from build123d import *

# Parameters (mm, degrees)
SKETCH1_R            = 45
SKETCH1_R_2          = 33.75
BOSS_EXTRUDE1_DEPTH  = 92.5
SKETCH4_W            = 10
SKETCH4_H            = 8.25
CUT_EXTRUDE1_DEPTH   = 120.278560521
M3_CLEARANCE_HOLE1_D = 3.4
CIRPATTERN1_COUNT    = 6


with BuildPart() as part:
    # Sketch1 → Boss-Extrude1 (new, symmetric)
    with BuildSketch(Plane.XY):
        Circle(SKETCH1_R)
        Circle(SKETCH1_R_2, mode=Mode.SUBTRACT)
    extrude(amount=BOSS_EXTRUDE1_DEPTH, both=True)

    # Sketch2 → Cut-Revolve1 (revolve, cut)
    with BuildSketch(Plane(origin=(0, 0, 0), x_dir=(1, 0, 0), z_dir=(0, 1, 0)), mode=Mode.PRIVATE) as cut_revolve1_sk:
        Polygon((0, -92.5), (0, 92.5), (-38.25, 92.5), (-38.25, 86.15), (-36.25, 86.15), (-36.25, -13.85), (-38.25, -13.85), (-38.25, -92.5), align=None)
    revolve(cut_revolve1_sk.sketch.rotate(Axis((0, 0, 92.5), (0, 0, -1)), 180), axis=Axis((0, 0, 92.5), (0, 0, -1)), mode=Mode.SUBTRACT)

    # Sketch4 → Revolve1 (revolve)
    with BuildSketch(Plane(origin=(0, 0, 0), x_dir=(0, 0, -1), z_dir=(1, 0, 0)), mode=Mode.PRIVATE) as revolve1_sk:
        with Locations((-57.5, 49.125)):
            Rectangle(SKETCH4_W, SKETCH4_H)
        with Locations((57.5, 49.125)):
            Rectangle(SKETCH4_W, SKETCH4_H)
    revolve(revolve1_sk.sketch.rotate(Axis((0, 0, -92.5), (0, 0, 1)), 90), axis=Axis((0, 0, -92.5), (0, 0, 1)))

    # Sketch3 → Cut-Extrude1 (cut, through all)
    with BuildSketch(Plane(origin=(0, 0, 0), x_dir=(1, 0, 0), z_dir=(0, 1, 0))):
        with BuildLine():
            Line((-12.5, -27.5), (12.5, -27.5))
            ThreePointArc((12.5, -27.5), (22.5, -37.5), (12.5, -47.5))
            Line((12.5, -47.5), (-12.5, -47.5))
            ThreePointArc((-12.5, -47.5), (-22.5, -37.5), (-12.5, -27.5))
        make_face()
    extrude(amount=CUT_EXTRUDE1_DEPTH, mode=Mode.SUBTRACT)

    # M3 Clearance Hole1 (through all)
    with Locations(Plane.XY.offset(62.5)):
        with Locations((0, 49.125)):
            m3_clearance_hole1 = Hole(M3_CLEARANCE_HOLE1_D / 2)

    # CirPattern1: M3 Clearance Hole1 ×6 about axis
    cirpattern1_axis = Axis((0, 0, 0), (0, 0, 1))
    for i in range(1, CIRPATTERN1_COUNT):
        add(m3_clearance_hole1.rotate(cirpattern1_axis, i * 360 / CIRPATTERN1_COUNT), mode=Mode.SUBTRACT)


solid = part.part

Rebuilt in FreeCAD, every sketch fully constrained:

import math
import FreeCAD as App
import Part
import Sketcher

doc = App.newDocument("Part")
body = doc.addObject("PartDesign::Body", "Body")

sketch1 = body.newObject("Sketcher::SketchObject", "Sketch")
sketch1.AttachmentSupport = (doc.getObject("XY_Plane"), [""])
sketch1.MapMode = "FlatFace"
sketch1.addGeometry([
    Part.Circle(App.Vector(0, 0, 0), App.Vector(0, 0, 1), 45),
    Part.Circle(App.Vector(0, 0, 0), App.Vector(0, 0, 1), 34),
], False)
sketch1.addConstraint([
    Sketcher.Constraint("Coincident", 0, 3, -1, 1),
    Sketcher.Constraint("Coincident", 1, 3, -1, 1),
    Sketcher.Constraint("Diameter", 0, 90.0),
    Sketcher.Constraint("Diameter", 1, 67.5),
])
pad1 = body.newObject("PartDesign::Pad", "Pad")
pad1.Profile = sketch1
pad1.Length = 185
pad1.Midplane = True

sketch2 = body.newObject("Sketcher::SketchObject", "Sketch001")
sketch2.AttachmentSupport = (doc.getObject("XZ_Plane"), [""])
sketch2.MapMode = "FlatFace"
sketch2.addGeometry([
    Part.LineSegment(App.Vector(0, 92.5, 0), App.Vector(0, -92.5, 0)),
    Part.LineSegment(App.Vector(0, -92.5, 0), App.Vector(-38.2, -92.5, 0)),
    Part.LineSegment(App.Vector(-38.2, -92.5, 0), App.Vector(-38.2, -86.2, 0)),
    Part.LineSegment(App.Vector(-38.2, -86.2, 0), App.Vector(-36.2, -86.2, 0)),
    Part.LineSegment(App.Vector(-36.2, -86.2, 0), App.Vector(-36.2, 13.8, 0)),
    Part.LineSegment(App.Vector(-36.2, 13.8, 0), App.Vector(-38.2, 13.8, 0)),
    Part.LineSegment(App.Vector(-38.2, 13.8, 0), App.Vector(-38.2, 92.5, 0)),
    Part.LineSegment(App.Vector(-38.2, 92.5, 0), App.Vector(0, 92.5, 0)),
], False)
sketch2.addConstraint([
    Sketcher.Constraint("Coincident", 0, 2, 1, 1),
    Sketcher.Constraint("Coincident", 1, 2, 2, 1),
    Sketcher.Constraint("Coincident", 2, 2, 3, 1),
    Sketcher.Constraint("Coincident", 3, 2, 4, 1),
    Sketcher.Constraint("Coincident", 4, 2, 5, 1),
    Sketcher.Constraint("Coincident", 5, 2, 6, 1),
    Sketcher.Constraint("Coincident", 6, 2, 7, 1),
    Sketcher.Constraint("Coincident", 7, 2, 0, 1),
    Sketcher.Constraint("Vertical", 0),
    Sketcher.Constraint("Horizontal", 1),
    Sketcher.Constraint("Vertical", 2),
    Sketcher.Constraint("Horizontal", 3),
    Sketcher.Constraint("Vertical", 4),
    Sketcher.Constraint("Horizontal", 5),
    Sketcher.Constraint("Vertical", 6),
    Sketcher.Constraint("Horizontal", 7),
    Sketcher.Constraint("Symmetric", 0, 2, 7, 2, -1, 1),
    Sketcher.Constraint("Vertical", 2, 2, 5, 2),
    Sketcher.Constraint("DistanceX", 3, 1, 3, 2, 2.0),
    Sketcher.Constraint("DistanceY", 0, 2, 0, 1, 185.0),
    Sketcher.Constraint("DistanceY", 4, 1, 4, 2, 100.0),
    Sketcher.Constraint("DistanceX", 1, 2, 1, 1, 38.25),
    Sketcher.Constraint("DistanceY", 2, 1, 2, 2, 6.35),
])
groove = body.newObject("PartDesign::Groove", "Groove")
groove.Profile = sketch2
groove.ReferenceAxis = (sketch2, ["V_Axis"])
groove.Angle = 360

sketch3 = body.newObject("Sketcher::SketchObject", "Sketch002")
sketch3.AttachmentSupport = (doc.getObject("YZ_Plane"), [""])
sketch3.MapMode = "FlatFace"
sketch3.addGeometry([
    Part.LineSegment(App.Vector(53, 62, 0), App.Vector(45, 62, 0)),
    Part.LineSegment(App.Vector(45, 62, 0), App.Vector(45, 52, 0)),
    Part.LineSegment(App.Vector(45, 52, 0), App.Vector(53, 52, 0)),
    Part.LineSegment(App.Vector(53, 52, 0), App.Vector(53, 62, 0)),
    Part.LineSegment(App.Vector(53, -52, 0), App.Vector(45, -52, 0)),
    Part.LineSegment(App.Vector(45, -52, 0), App.Vector(45, -62, 0)),
    Part.LineSegment(App.Vector(45, -62, 0), App.Vector(53, -62, 0)),
    Part.LineSegment(App.Vector(53, -62, 0), App.Vector(53, -52, 0)),
], False)
sketch3.addConstraint([
    Sketcher.Constraint("Coincident", 0, 2, 1, 1),
    Sketcher.Constraint("Coincident", 1, 2, 2, 1),
    Sketcher.Constraint("Coincident", 2, 2, 3, 1),
    Sketcher.Constraint("Coincident", 3, 2, 0, 1),
    Sketcher.Constraint("Coincident", 4, 2, 5, 1),
    Sketcher.Constraint("Coincident", 5, 2, 6, 1),
    Sketcher.Constraint("Coincident", 6, 2, 7, 1),
    Sketcher.Constraint("Coincident", 7, 2, 4, 1),
    Sketcher.Constraint("Horizontal", 0),
    Sketcher.Constraint("Vertical", 1),
    Sketcher.Constraint("Horizontal", 2),
    Sketcher.Constraint("Vertical", 3),
    Sketcher.Constraint("Horizontal", 4),
    Sketcher.Constraint("Vertical", 5),
    Sketcher.Constraint("Horizontal", 6),
    Sketcher.Constraint("Vertical", 7),
    Sketcher.Constraint("Symmetric", 1, 2, 4, 2, -1),
    Sketcher.Constraint("Symmetric", 3, 2, 6, 2, -1),
    Sketcher.Constraint("DistanceY", 1, 2, 1, 1, 10.0),
    Sketcher.Constraint("DistanceX", -1, 1, 0, 2, 45.0),
    Sketcher.Constraint("DistanceY", 4, 2, 1, 2, 105.0),
    Sketcher.Constraint("DistanceX", 0, 2, 0, 1, 8.25),
])
revolution = body.newObject("PartDesign::Revolution", "Revolution")
revolution.Profile = sketch3
revolution.ReferenceAxis = (sketch3, ["V_Axis"])
revolution.Angle = 360

sketch4 = body.newObject("Sketcher::SketchObject", "Sketch003")
sketch4.AttachmentSupport = (doc.getObject("XZ_Plane"), [""])
sketch4.MapMode = "FlatFace"
sketch4.addGeometry([
    Part.LineSegment(App.Vector(12, 28, 0), App.Vector(-12, 28, 0)),
    Part.ArcOfCircle(Part.Circle(App.Vector(-12, 38, 0), App.Vector(0, 0, 1), 10), math.radians(90), math.radians(270)),
    Part.LineSegment(App.Vector(-12, 48, 0), App.Vector(12, 48, 0)),
    Part.ArcOfCircle(Part.Circle(App.Vector(12, 38, 0), App.Vector(0, 0, 1), 10), math.radians(-90), math.radians(90)),
], False)
sketch4.addConstraint([
    Sketcher.Constraint("Tangent", 0, 2, 1, 2),
    Sketcher.Constraint("Tangent", 1, 1, 2, 1),
    Sketcher.Constraint("Tangent", 2, 2, 3, 2),
    Sketcher.Constraint("Tangent", 3, 1, 0, 1),
    Sketcher.Constraint("Horizontal", 0),
    Sketcher.Constraint("Horizontal", 2),
    Sketcher.Constraint("Radius", 1, 10.0),
    Sketcher.Constraint("DistanceX", 0, 2, 0, 1, 25.0),
    Sketcher.Constraint("DistanceX", 1, 3, -1, 1, 12.5),
    Sketcher.Constraint("DistanceY", -1, 1, 1, 3, 37.5),
])
pocket1 = body.newObject("PartDesign::Pocket", "Pocket")
pocket1.Profile = sketch4
pocket1.Type = "ThroughAll"

sketch5 = body.newObject("Sketcher::SketchObject", "Sketch004")
sketch5.AttachmentSupport = (doc.getObject("XY_Plane"), [""])
sketch5.MapMode = "FlatFace"
sketch5.AttachmentOffset = App.Placement(App.Vector(0, 0, 62.5), App.Rotation())
sketch5.addGeometry(Part.Circle(App.Vector(0, 49.1, 0), App.Vector(0, 0, 1), 1.7), False)
sketch5.addConstraint([
    Sketcher.Constraint("PointOnObject", 0, 3, -2),
    Sketcher.Constraint("Diameter", 0, 3.4),
    Sketcher.Constraint("DistanceY", -1, 1, 0, 3, 49.125),
])
doc.recompute()
hole = body.newObject("PartDesign::Hole", "Hole")
hole.Profile = sketch5
hole.ThreadType = "None"
hole.Diameter = 3.4
hole.DepthType = "ThroughAll"
doc.recompute()

polarpattern = body.newObject("PartDesign::PolarPattern", "PolarPattern")
polarpattern.Originals = [hole]
polarpattern.Axis = (doc.getObject("Z_Axis"), [""])
polarpattern.Angle = 360
polarpattern.Occurrences = 6
body.Tip = polarpattern

doc.recompute()
